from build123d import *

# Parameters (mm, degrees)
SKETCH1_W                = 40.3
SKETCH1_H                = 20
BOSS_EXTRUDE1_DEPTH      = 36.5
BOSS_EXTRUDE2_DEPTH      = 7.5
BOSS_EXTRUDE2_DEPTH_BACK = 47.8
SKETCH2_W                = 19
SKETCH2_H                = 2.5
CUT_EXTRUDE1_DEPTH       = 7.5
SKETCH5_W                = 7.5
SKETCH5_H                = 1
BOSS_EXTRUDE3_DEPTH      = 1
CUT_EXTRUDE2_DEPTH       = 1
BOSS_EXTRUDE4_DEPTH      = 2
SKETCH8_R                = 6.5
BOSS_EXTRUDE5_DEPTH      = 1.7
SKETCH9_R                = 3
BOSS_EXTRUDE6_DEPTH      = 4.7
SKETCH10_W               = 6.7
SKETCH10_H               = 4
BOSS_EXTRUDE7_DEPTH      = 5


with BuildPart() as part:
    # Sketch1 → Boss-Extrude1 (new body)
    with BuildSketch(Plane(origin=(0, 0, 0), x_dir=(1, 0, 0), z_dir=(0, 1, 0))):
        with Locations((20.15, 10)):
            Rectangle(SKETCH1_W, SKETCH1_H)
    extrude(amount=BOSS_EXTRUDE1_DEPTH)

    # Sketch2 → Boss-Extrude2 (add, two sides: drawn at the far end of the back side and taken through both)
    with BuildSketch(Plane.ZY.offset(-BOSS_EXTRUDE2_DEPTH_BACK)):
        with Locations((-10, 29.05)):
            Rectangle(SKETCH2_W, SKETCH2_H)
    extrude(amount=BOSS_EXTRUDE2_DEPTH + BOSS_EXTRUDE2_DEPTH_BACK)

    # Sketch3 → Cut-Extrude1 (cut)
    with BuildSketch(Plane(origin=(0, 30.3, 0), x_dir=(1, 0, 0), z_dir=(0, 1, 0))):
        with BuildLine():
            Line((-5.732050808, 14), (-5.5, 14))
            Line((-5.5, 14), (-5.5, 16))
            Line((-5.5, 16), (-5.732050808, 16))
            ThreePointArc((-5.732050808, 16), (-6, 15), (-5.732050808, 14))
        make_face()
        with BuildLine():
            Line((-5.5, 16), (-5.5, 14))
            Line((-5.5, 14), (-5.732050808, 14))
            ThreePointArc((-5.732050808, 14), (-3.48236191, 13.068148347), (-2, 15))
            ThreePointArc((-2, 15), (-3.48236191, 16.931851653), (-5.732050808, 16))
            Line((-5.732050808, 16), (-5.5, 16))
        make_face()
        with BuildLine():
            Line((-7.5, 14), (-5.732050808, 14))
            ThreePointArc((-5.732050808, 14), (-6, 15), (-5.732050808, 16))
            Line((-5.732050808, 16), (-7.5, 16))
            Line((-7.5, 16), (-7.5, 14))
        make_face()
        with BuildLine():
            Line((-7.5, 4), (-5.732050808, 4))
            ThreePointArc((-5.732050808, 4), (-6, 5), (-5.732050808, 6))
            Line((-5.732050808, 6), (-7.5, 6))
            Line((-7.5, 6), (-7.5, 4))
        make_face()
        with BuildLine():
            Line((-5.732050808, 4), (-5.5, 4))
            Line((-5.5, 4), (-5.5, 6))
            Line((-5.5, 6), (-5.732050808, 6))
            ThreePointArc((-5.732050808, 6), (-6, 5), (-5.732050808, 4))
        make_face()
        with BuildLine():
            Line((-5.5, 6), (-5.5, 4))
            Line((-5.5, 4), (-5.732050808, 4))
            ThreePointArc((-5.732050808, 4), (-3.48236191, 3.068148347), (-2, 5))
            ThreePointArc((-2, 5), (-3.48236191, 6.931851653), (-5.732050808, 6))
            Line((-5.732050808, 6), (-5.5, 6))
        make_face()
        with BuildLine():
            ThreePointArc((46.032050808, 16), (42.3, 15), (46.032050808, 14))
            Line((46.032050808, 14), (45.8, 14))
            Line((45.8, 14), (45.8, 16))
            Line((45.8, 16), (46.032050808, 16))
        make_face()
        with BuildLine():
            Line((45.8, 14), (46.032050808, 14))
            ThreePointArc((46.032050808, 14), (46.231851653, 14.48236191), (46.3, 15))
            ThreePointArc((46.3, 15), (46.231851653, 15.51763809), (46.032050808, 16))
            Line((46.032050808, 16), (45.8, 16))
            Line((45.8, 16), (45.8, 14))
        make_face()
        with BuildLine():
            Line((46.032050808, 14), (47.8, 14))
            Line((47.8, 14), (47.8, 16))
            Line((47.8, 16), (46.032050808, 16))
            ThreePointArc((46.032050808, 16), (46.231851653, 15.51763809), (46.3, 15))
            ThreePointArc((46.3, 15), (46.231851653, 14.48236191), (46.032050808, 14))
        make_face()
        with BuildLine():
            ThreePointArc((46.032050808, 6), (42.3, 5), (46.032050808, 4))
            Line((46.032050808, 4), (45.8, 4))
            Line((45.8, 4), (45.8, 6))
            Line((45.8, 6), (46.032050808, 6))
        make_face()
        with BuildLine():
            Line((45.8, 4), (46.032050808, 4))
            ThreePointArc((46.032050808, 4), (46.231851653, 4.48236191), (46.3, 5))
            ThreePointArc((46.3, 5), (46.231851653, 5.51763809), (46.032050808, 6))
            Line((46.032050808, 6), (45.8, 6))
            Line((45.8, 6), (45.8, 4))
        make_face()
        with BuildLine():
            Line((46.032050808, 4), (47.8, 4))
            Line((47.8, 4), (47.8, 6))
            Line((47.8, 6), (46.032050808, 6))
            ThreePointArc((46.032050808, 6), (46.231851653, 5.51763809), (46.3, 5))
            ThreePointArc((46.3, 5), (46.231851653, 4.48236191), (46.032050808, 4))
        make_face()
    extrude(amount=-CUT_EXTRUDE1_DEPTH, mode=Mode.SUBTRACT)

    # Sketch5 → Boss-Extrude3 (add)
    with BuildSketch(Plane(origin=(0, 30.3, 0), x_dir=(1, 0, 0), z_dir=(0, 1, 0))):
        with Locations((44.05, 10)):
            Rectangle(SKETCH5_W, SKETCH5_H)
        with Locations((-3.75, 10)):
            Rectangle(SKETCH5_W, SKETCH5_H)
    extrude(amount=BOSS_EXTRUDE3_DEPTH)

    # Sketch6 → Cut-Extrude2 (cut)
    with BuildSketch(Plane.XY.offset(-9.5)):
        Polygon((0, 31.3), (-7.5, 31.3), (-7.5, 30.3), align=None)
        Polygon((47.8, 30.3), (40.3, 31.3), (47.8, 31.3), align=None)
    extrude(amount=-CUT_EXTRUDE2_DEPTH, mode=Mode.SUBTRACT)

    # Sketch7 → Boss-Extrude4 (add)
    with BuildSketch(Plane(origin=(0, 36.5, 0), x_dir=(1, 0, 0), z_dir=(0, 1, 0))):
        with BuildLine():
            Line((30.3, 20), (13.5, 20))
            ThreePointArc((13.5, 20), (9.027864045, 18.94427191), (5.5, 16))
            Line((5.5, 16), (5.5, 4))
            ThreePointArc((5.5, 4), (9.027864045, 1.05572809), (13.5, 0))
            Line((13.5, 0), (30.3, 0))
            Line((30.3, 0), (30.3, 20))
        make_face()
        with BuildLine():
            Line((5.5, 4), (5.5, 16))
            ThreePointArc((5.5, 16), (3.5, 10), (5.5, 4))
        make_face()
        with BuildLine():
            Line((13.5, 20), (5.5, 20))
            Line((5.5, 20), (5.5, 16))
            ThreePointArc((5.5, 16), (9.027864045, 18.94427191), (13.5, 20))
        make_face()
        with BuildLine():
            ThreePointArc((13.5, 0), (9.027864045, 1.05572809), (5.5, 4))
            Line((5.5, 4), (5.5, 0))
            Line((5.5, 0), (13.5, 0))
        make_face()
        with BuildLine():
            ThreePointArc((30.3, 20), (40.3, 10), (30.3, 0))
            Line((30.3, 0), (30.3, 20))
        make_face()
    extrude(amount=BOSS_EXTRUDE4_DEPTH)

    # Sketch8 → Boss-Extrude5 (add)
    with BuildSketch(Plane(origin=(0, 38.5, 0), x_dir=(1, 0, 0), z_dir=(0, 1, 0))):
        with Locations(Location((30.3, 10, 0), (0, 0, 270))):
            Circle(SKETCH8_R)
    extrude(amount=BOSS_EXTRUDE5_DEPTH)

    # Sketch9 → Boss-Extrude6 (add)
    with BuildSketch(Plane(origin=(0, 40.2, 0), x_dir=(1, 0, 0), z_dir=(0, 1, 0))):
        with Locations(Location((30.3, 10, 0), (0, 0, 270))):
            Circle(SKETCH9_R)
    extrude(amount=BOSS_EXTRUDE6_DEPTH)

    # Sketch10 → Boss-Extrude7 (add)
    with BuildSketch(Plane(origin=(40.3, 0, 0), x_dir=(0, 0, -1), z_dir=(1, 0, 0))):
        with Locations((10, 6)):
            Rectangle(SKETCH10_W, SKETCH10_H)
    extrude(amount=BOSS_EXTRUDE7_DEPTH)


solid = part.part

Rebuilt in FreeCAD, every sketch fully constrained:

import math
import FreeCAD as App
import Part
import Sketcher

doc = App.newDocument("Part")
body = doc.addObject("PartDesign::Body", "Body")

# Sketch on XZ plane
sketch1 = body.newObject("Sketcher::SketchObject", "Sketch")
sketch1.AttachmentSupport = (doc.getObject("XZ_Plane"), [""])
sketch1.MapMode = "FlatFace"
sketch1.addGeometry(Part.LineSegment(App.Vector(0, -20, 0), App.Vector(0, 0, 0)), False)
sketch1.addGeometry(Part.LineSegment(App.Vector(0, 0, 0), App.Vector(40, 0, 0)), False)
sketch1.addGeometry(Part.LineSegment(App.Vector(40, 0, 0), App.Vector(40, -20, 0)), False)
sketch1.addGeometry(Part.LineSegment(App.Vector(40, -20, 0), App.Vector(0, -20, 0)), False)
sketch1.addConstraint(Sketcher.Constraint("Coincident", 0, 2, 1, 1))
sketch1.addConstraint(Sketcher.Constraint("Coincident", 1, 2, 2, 1))
sketch1.addConstraint(Sketcher.Constraint("Coincident", 2, 2, 3, 1))
sketch1.addConstraint(Sketcher.Constraint("Coincident", 3, 2, 0, 1))
sketch1.addConstraint(Sketcher.Constraint("Vertical", 0))
sketch1.addConstraint(Sketcher.Constraint("Horizontal", 1))
sketch1.addConstraint(Sketcher.Constraint("Vertical", 2))
sketch1.addConstraint(Sketcher.Constraint("Horizontal", 3))
sketch1.addConstraint(Sketcher.Constraint("Coincident", 0, 2, -1, 1))
sketch1.addConstraint(Sketcher.Constraint("DistanceY", 0, 1, 0, 2, 20.0))
sketch1.addConstraint(Sketcher.Constraint("DistanceX", 1, 1, 1, 2, 40.3))
pad1 = body.newObject("PartDesign::Pad", "Pad")
pad1.Profile = sketch1
pad1.Length = 36.5
pad1.Reversed = True

# Sketch on YZ plane
sketch2 = body.newObject("Sketcher::SketchObject", "Sketch001")
sketch2.AttachmentSupport = (doc.getObject("YZ_Plane"), [""])
sketch2.MapMode = "FlatFace"
sketch2.addGeometry(Part.LineSegment(App.Vector(30.3, -19.5, 0), App.Vector(27.8, -19.5, 0)), False)
sketch2.addGeometry(Part.LineSegment(App.Vector(27.8, -19.5, 0), App.Vector(27.8, -0.5, 0)), False)
sketch2.addGeometry(Part.LineSegment(App.Vector(27.8, -0.5, 0), App.Vector(30.3, -0.5, 0)), False)
sketch2.addGeometry(Part.LineSegment(App.Vector(30.3, -0.5, 0), App.Vector(30.3, -19.5, 0)), False)
sketch2.addConstraint(Sketcher.Constraint("Coincident", 0, 2, 1, 1))
sketch2.addConstraint(Sketcher.Constraint("Coincident", 1, 2, 2, 1))
sketch2.addConstraint(Sketcher.Constraint("Coincident", 2, 2, 3, 1))
sketch2.addConstraint(Sketcher.Constraint("Coincident", 3, 2, 0, 1))
sketch2.addConstraint(Sketcher.Constraint("Horizontal", 0))
sketch2.addConstraint(Sketcher.Constraint("Vertical", 1))
sketch2.addConstraint(Sketcher.Constraint("Horizontal", 2))
sketch2.addConstraint(Sketcher.Constraint("Vertical", 3))
sketch2.addConstraint(Sketcher.Constraint("DistanceY", 1, 1, 1, 2, 19.0))
sketch2.addConstraint(Sketcher.Constraint("DistanceX", 0, 2, 0, 1, 2.5))
sketch2.addConstraint(Sketcher.Constraint("DistanceX", -1, 1, 0, 2, 27.8))
sketch2.addConstraint(Sketcher.Constraint("DistanceY", 0, 2, -1, 1, 19.5))
pad2 = body.newObject("PartDesign::Pad", "Pad001")
pad2.Profile = sketch2
pad2.Type = "TwoLengths"
pad2.Length = 7.5
pad2.Length2 = 47.8
pad2.Reversed = True

# Sketch on XZ plane
sketch3 = body.newObject("Sketcher::SketchObject", "Sketch002")
sketch3.AttachmentSupport = (doc.getObject("XZ_Plane"), [""])
sketch3.MapMode = "FlatFace"
sketch3.AttachmentOffset = App.Placement(App.Vector(0, 0, -30.3), App.Rotation())
sketch3.addGeometry(Part.ArcOfCircle(Part.Circle(App.Vector(-4, -15, 0), App.Vector(0, 0, 1), 2), math.radians(0), math.radians(150)), False)
sketch3.addGeometry(Part.ArcOfCircle(Part.Circle(App.Vector(-4, -15, 0), App.Vector(0, 0, 1), 2), math.radians(-150), math.radians(0)), False)
sketch3.addGeometry(Part.LineSegment(App.Vector(-5.7, -16, 0), App.Vector(-7.5, -16, 0)), False)
sketch3.addGeometry(Part.LineSegment(App.Vector(-7.5, -16, 0), App.Vector(-7.5, -14, 0)), False)
sketch3.addGeometry(Part.LineSegment(App.Vector(-7.5, -14, 0), App.Vector(-5.7, -14, 0)), False)
sketch3.addGeometry(Part.LineSegment(App.Vector(-5.7, -6, 0), App.Vector(-7.5, -6, 0)), False)
sketch3.addGeometry(Part.LineSegment(App.Vector(-7.5, -6, 0), App.Vector(-7.5, -4, 0)), False)
sketch3.addGeometry(Part.LineSegment(App.Vector(-7.5, -4, 0), App.Vector(-5.7, -4, 0)), False)
sketch3.addGeometry(Part.ArcOfCircle(Part.Circle(App.Vector(-4, -5, 0), App.Vector(0, 0, 1), 2), math.radians(0), math.radians(150)), False)
sketch3.addGeometry(Part.ArcOfCircle(Part.Circle(App.Vector(-4, -5, 0), App.Vector(0, 0, 1), 2), math.radians(-150), math.radians(0)), False)
sketch3.addGeometry(Part.ArcOfCircle(Part.Circle(App.Vector(44.3, -15, 0), App.Vector(0, 0, 1), 2), math.radians(30), math.radians(330)), False)
sketch3.addGeometry(Part.LineSegment(App.Vector(46, -14, 0), App.Vector(47.8, -14, 0)), False)
sketch3.addGeometry(Part.LineSegment(App.Vector(47.8, -14, 0), App.Vector(47.8, -16, 0)), False)
sketch3.addGeometry(Part.LineSegment(App.Vector(47.8, -16, 0), App.Vector(46, -16, 0)), False)
sketch3.addGeometry(Part.ArcOfCircle(Part.Circle(App.Vector(44.3, -5, 0), App.Vector(0, 0, 1), 2), math.radians(30), math.radians(330)), False)
sketch3.addGeometry(Part.LineSegment(App.Vector(46, -4, 0), App.Vector(47.8, -4, 0)), False)
sketch3.addGeometry(Part.LineSegment(App.Vector(47.8, -4, 0), App.Vector(47.8, -6, 0)), False)
sketch3.addGeometry(Part.LineSegment(App.Vector(47.8, -6, 0), App.Vector(46, -6, 0)), False)
sketch3.addConstraint(Sketcher.Constraint("Tangent", 0, 1, 1, 2))
sketch3.addConstraint(Sketcher.Constraint("Coincident", 1, 1, 2, 1))
sketch3.addConstraint(Sketcher.Constraint("Coincident", 2, 2, 3, 1))
sketch3.addConstraint(Sketcher.Constraint("Coincident", 3, 2, 4, 1))
sketch3.addConstraint(Sketcher.Constraint("Coincident", 4, 2, 0, 2))
sketch3.addConstraint(Sketcher.Constraint("Coincident", 5, 2, 6, 1))
sketch3.addConstraint(Sketcher.Constraint("Coincident", 6, 2, 7, 1))
sketch3.addConstraint(Sketcher.Constraint("Coincident", 7, 2, 8, 2))
sketch3.addConstraint(Sketcher.Constraint("Tangent", 8, 1, 9, 2))
sketch3.addConstraint(Sketcher.Constraint("Coincident", 9, 1, 5, 1))
sketch3.addConstraint(Sketcher.Constraint("Coincident", 10, 1, 11, 1))
sketch3.addConstraint(Sketcher.Constraint("Coincident", 11, 2, 12, 1))
sketch3.addConstraint(Sketcher.Constraint("Coincident", 12, 2, 13, 1))
sketch3.addConstraint(Sketcher.Constraint("Coincident", 13, 2, 10, 2))
sketch3.addConstraint(Sketcher.Constraint("Coincident", 14, 1, 15, 1))
sketch3.addConstraint(Sketcher.Constraint("Coincident", 15, 2, 16, 1))
sketch3.addConstraint(Sketcher.Constraint("Coincident", 16, 2, 17, 1))
sketch3.addConstraint(Sketcher.Constraint("Coincident", 17, 2, 14, 2))
sketch3.addConstraint(Sketcher.Constraint("Horizontal", 2))
sketch3.addConstraint(Sketcher.Constraint("Vertical", 3))
sketch3.addConstraint(Sketcher.Constraint("Horizontal", 4))
sketch3.addConstraint(Sketcher.Constraint("Horizontal", 5))
sketch3.addConstraint(Sketcher.Constraint("Vertical", 6))
sketch3.addConstraint(Sketcher.Constraint("Horizontal", 7))
sketch3.addConstraint(Sketcher.Constraint("Horizontal", 11))
sketch3.addConstraint(Sketcher.Constraint("Vertical", 12))
sketch3.addConstraint(Sketcher.Constraint("Horizontal", 13))
sketch3.addConstraint(Sketcher.Constraint("Horizontal", 15))
sketch3.addConstraint(Sketcher.Constraint("Vertical", 16))
sketch3.addConstraint(Sketcher.Constraint("Horizontal", 17))
sketch3.addConstraint(Sketcher.Constraint("Equal", 0, 1))
sketch3.addConstraint(Sketcher.Constraint("Equal", 1, 8))
sketch3.addConstraint(Sketcher.Constraint("Equal", 8, 9))
sketch3.addConstraint(Sketcher.Constraint("Equal", 9, 10))
sketch3.addConstraint(Sketcher.Constraint("Equal", 10, 14))
sketch3.addConstraint(Sketcher.Constraint("Horizontal", 1, 3, 10, 3))
sketch3.addConstraint(Sketcher.Constraint("Horizontal", 9, 3, 14, 3))
sketch3.addConstraint(Sketcher.Constraint("Horizontal", 10, 3, 0, 1))
sketch3.addConstraint(Sketcher.Constraint("Horizontal", 14, 3, 8, 1))
sketch3.addConstraint(Sketcher.Constraint("Horizontal", 4, 2, 10, 1))
sketch3.addConstraint(Sketcher.Constraint("Horizontal", 2, 2, 12, 2))
sketch3.addConstraint(Sketcher.Constraint("Horizontal", 7, 2, 14, 1))
sketch3.addConstraint(Sketcher.Constraint("Horizontal", 9, 1, 16, 2))
sketch3.addConstraint(Sketcher.Constraint("Vertical", 1, 3, 8, 3))
sketch3.addConstraint(Sketcher.Constraint("Vertical", 10, 3, 14, 3))
sketch3.addConstraint(Sketcher.Constraint("Vertical", 1, 1, 4, 2))
sketch3.addConstraint(Sketcher.Constraint("Vertical", 3, 2, 5, 2))
sketch3.addConstraint(Sketcher.Constraint("Vertical", 4, 2, 7, 2))
sketch3.addConstraint(Sketcher.Constraint("Vertical", 7, 2, 9, 1))
sketch3.addConstraint(Sketcher.Constraint("Vertical", 12, 2, 15, 2))
sketch3.addConstraint(Sketcher.Constraint("Equal", 7, 11))
sketch3.addConstraint(Sketcher.Constraint("Radius", 0, 2.0))
sketch3.addConstraint(Sketcher.Constraint("DistanceY", 3, 1, 3, 2, 2.0))
sketch3.addConstraint(Sketcher.Constraint("DistanceX", 0, 3, -1, 1, 4.0))
sketch3.addConstraint(Sketcher.Constraint("DistanceY", 0, 3, -1, 1, 15.0))
sketch3.addConstraint(Sketcher.Constraint("DistanceY", 8, 3, -1, 1, 5.0))
sketch3.addConstraint(Sketcher.Constraint("DistanceX", -1, 1, 10, 3, 44.3))
sketch3.addConstraint(Sketcher.Constraint("DistanceX", 2, 2, -1, 1, 7.5))
pocket1 = body.newObject("PartDesign::Pocket", "Pocket")
pocket1.Profile = sketch3
pocket1.Length = 7.5
pocket1.Reversed = True

# Sketch on XZ plane
sketch4 = body.newObject("Sketcher::SketchObject", "Sketch003")
sketch4.AttachmentSupport = (doc.getObject("XZ_Plane"), [""])
sketch4.MapMode = "FlatFace"
sketch4.AttachmentOffset = App.Placement(App.Vector(0, 0, -30.3), App.Rotation())
sketch4.addGeometry(Part.LineSegment(App.Vector(40.3, -10.5, 0), App.Vector(40.3, -9.5, 0)), False)
sketch4.addGeometry(Part.LineSegment(App.Vector(40.3, -9.5, 0), App.Vector(47.8, -9.5, 0)), False)
sketch4.addGeometry(Part.LineSegment(App.Vector(47.8, -9.5, 0), App.Vector(47.8, -10.5, 0)), False)
sketch4.addGeometry(Part.LineSegment(App.Vector(47.8, -10.5, 0), App.Vector(40.3, -10.5, 0)), False)
sketch4.addGeometry(Part.LineSegment(App.Vector(-7.5, -10.5, 0), App.Vector(-7.5, -9.5, 0)), False)
sketch4.addGeometry(Part.LineSegment(App.Vector(-7.5, -9.5, 0), App.Vector(0, -9.5, 0)), False)
sketch4.addGeometry(Part.LineSegment(App.Vector(0, -9.5, 0), App.Vector(0, -10.5, 0)), False)
sketch4.addGeometry(Part.LineSegment(App.Vector(0, -10.5, 0), App.Vector(-7.5, -10.5, 0)), False)
sketch4.addConstraint(Sketcher.Constraint("Coincident", 0, 2, 1, 1))
sketch4.addConstraint(Sketcher.Constraint("Coincident", 1, 2, 2, 1))
sketch4.addConstraint(Sketcher.Constraint("Coincident", 2, 2, 3, 1))
sketch4.addConstraint(Sketcher.Constraint("Coincident", 3, 2, 0, 1))
sketch4.addConstraint(Sketcher.Constraint("Coincident", 4, 2, 5, 1))
sketch4.addConstraint(Sketcher.Constraint("Coincident", 5, 2, 6, 1))
sketch4.addConstraint(Sketcher.Constraint("Coincident", 6, 2, 7, 1))
sketch4.addConstraint(Sketcher.Constraint("Coincident", 7, 2, 4, 1))
sketch4.addConstraint(Sketcher.Constraint("Vertical", 0))
sketch4.addConstraint(Sketcher.Constraint("Horizontal", 1))
sketch4.addConstraint(Sketcher.Constraint("Vertical", 2))
sketch4.addConstraint(Sketcher.Constraint("Horizontal", 3))
sketch4.addConstraint(Sketcher.Constraint("Vertical", 4))
sketch4.addConstraint(Sketcher.Constraint("Horizontal", 5))
sketch4.addConstraint(Sketcher.Constraint("Vertical", 6))
sketch4.addConstraint(Sketcher.Constraint("Horizontal", 7))
sketch4.addConstraint(Sketcher.Constraint("PointOnObject", 5, 2, -2))
sketch4.addConstraint(Sketcher.Constraint("Horizontal", 1, 2, 4, 2))
sketch4.addConstraint(Sketcher.Constraint("Horizontal", 3, 2, 6, 2))
sketch4.addConstraint(Sketcher.Constraint("Equal", 3, 5))
sketch4.addConstraint(Sketcher.Constraint("DistanceY", 0, 1, 0, 2, 1.0))
sketch4.addConstraint(Sketcher.Constraint("DistanceX", 1, 1, 1, 2, 7.5))
sketch4.addConstraint(Sketcher.Constraint("DistanceX", -1, 1, 0, 2, 40.3))
sketch4.addConstraint(Sketcher.Constraint("DistanceY", 0, 2, -1, 1, 9.5))
pad3 = body.newObject("PartDesign::Pad", "Pad002")
pad3.Profile = sketch4
pad3.Length = 1
pad3.Reversed = True

# Sketch on XY plane
sketch5 = body.newObject("Sketcher::SketchObject", "Sketch004")
sketch5.AttachmentSupport = (doc.getObject("XY_Plane"), [""])
sketch5.MapMode = "FlatFace"
sketch5.AttachmentOffset = App.Placement(App.Vector(0, 0, -9.5), App.Rotation())
sketch5.addGeometry(Part.LineSegment(App.Vector(0, 31.3, 0), App.Vector(-7.5, 31.3, 0)), False)
sketch5.addGeometry(Part.LineSegment(App.Vector(-7.5, 31.3, 0), App.Vector(-7.5, 30.3, 0)), False)
sketch5.addGeometry(Part.LineSegment(App.Vector(-7.5, 30.3, 0), App.Vector(0, 31.3, 0)), False)
sketch5.addGeometry(Part.LineSegment(App.Vector(40.3, 31.3, 0), App.Vector(47.8, 30.3, 0)), False)
sketch5.addGeometry(Part.LineSegment(App.Vector(47.8, 30.3, 0), App.Vector(47.8, 31.3, 0)), False)
sketch5.addGeometry(Part.LineSegment(App.Vector(47.8, 31.3, 0), App.Vector(40.3, 31.3, 0)), False)
sketch5.addConstraint(Sketcher.Constraint("Coincident", 0, 2, 1, 1))
sketch5.addConstraint(Sketcher.Constraint("Coincident", 1, 2, 2, 1))
sketch5.addConstraint(Sketcher.Constraint("Coincident", 2, 2, 0, 1))
sketch5.addConstraint(Sketcher.Constraint("Coincident", 3, 2, 4, 1))
sketch5.addConstraint(Sketcher.Constraint("Coincident", 4, 2, 5, 1))
sketch5.addConstraint(Sketcher.Constraint("Coincident", 5, 2, 3, 1))
sketch5.addConstraint(Sketcher.Constraint("Horizontal", 0))
sketch5.addConstraint(Sketcher.Constraint("Vertical", 1))
sketch5.addConstraint(Sketcher.Constraint("Vertical", 4))
sketch5.addConstraint(Sketcher.Constraint("Horizontal", 5))
sketch5.addConstraint(Sketcher.Constraint("PointOnObject", 2, 2, -2))
sketch5.addConstraint(Sketcher.Constraint("Horizontal", 1, 2, 3, 2))
sketch5.addConstraint(Sketcher.Constraint("Horizontal", 2, 2, 4, 2))
sketch5.addConstraint(Sketcher.Constraint("Equal", 0, 5))
sketch5.addConstraint(Sketcher.Constraint("DistanceY", 1, 2, 1, 1, 1.0))
sketch5.addConstraint(Sketcher.Constraint("DistanceX", 0, 2, 0, 1, 7.5))
sketch5.addConstraint(Sketcher.Constraint("DistanceY", -1, 1, 0, 2, 31.3))
sketch5.addConstraint(Sketcher.Constraint("DistanceX", -1, 1, 3, 2, 47.8))
pocket2 = body.newObject("PartDesign::Pocket", "Pocket001")
pocket2.Profile = sketch5
pocket2.Length = 1

# Sketch on XZ plane
sketch6 = body.newObject("Sketcher::SketchObject", "Sketch005")
sketch6.AttachmentSupport = (doc.getObject("XZ_Plane"), [""])
sketch6.MapMode = "FlatFace"
sketch6.AttachmentOffset = App.Placement(App.Vector(0, 0, -36.5), App.Rotation())
sketch6.addGeometry(Part.LineSegment(App.Vector(30.3, -20, 0), App.Vector(5.5, -20, 0)), False)
sketch6.addGeometry(Part.LineSegment(App.Vector(5.5, -20, 0), App.Vector(5.5, -16, 0)), False)
sketch6.addGeometry(Part.ArcOfCircle(Part.Circle(App.Vector(13.5, -10, 0), App.Vector(0, 0, 1), 10), math.radians(143), math.radians(217)), False)
sketch6.addGeometry(Part.LineSegment(App.Vector(5.5, -4, 0), App.Vector(5.5, 0, 0)), False)
sketch6.addGeometry(Part.LineSegment(App.Vector(5.5, 0, 0), App.Vector(30.3, 0, 0)), False)
sketch6.addGeometry(Part.ArcOfCircle(Part.Circle(App.Vector(30.3, -10, 0), App.Vector(0, 0, 1), 10), math.radians(-90), math.radians(90)), False)
sketch6.addConstraint(Sketcher.Constraint("Coincident", 0, 2, 1, 1))
sketch6.addConstraint(Sketcher.Constraint("Coincident", 1, 2, 2, 2))
sketch6.addConstraint(Sketcher.Constraint("Coincident", 2, 1, 3, 1))
sketch6.addConstraint(Sketcher.Constraint("Coincident", 3, 2, 4, 1))
sketch6.addConstraint(Sketcher.Constraint("Tangent", 4, 2, 5, 2))
sketch6.addConstraint(Sketcher.Constraint("Tangent", 5, 1, 0, 1))
sketch6.addConstraint(Sketcher.Constraint("Horizontal", 0))
sketch6.addConstraint(Sketcher.Constraint("Vertical", 1))
sketch6.addConstraint(Sketcher.Constraint("Vertical", 3))
sketch6.addConstraint(Sketcher.Constraint("Horizontal", 4))
sketch6.addConstraint(Sketcher.Constraint("Equal", 2, 5))
sketch6.addConstraint(Sketcher.Constraint("PointOnObject", 3, 2, -1))
sketch6.addConstraint(Sketcher.Constraint("Horizontal", 2, 3, 5, 3))
sketch6.addConstraint(Sketcher.Constraint("Vertical", 1, 2, 2, 1))
sketch6.addConstraint(Sketcher.Constraint("Radius", 2, 10.0))
sketch6.addConstraint(Sketcher.Constraint("DistanceY", 1, 1, 1, 2, 4.0))
sketch6.addConstraint(Sketcher.Constraint("DistanceX", 0, 2, 0, 1, 24.8))
sketch6.addConstraint(Sketcher.Constraint("DistanceX", -1, 1, 2, 3, 13.5))
pad4 = body.newObject("PartDesign::Pad", "Pad003")
pad4.Profile = sketch6
pad4.Length = 2
pad4.Reversed = True

# Sketch on XZ plane
sketch7 = body.newObject("Sketcher::SketchObject", "Sketch006")
sketch7.AttachmentSupport = (doc.getObject("XZ_Plane"), [""])
sketch7.MapMode = "FlatFace"
sketch7.AttachmentOffset = App.Placement(App.Vector(0, 0, -38.5), App.Rotation())
sketch7.addGeometry(Part.Circle(App.Vector(30, -10, 0), App.Vector(0, 0, 1), 6), False)
sketch7.addConstraint(Sketcher.Constraint("Diameter", 0, 13.0))
sketch7.addConstraint(Sketcher.Constraint("DistanceY", 0, 3, -1, 1, 10.0))
sketch7.addConstraint(Sketcher.Constraint("DistanceX", -1, 1, 0, 3, 30.3))
pad5 = body.newObject("PartDesign::Pad", "Pad004")
pad5.Profile = sketch7
pad5.Length = 1.7
pad5.Reversed = True

# Sketch on XZ plane
sketch8 = body.newObject("Sketcher::SketchObject", "Sketch007")
sketch8.AttachmentSupport = (doc.getObject("XZ_Plane"), [""])
sketch8.MapMode = "FlatFace"
sketch8.AttachmentOffset = App.Placement(App.Vector(0, 0, -40.2), App.Rotation())
sketch8.addGeometry(Part.Circle(App.Vector(30.3, -10, 0), App.Vector(0, 0, 1), 3), False)
sketch8.addConstraint(Sketcher.Constraint("Diameter", 0, 6.0))
sketch8.addConstraint(Sketcher.Constraint("DistanceY", 0, 3, -1, 1, 10.0))
sketch8.addConstraint(Sketcher.Constraint("DistanceX", -1, 1, 0, 3, 30.3))
pad6 = body.newObject("PartDesign::Pad", "Pad005")
pad6.Profile = sketch8
pad6.Length = 4.7
pad6.Reversed = True

# Sketch on YZ plane
sketch9 = body.newObject("Sketcher::SketchObject", "Sketch008")
sketch9.AttachmentSupport = (doc.getObject("YZ_Plane"), [""])
sketch9.MapMode = "FlatFace"
sketch9.AttachmentOffset = App.Placement(App.Vector(0, 0, 40.3), App.Rotation())
sketch9.addGeometry(Part.LineSegment(App.Vector(8, -6.7, 0), App.Vector(4, -6.7, 0)), False)
sketch9.addGeometry(Part.LineSegment(App.Vector(4, -6.7, 0), App.Vector(4, -13.3, 0)), False)
sketch9.addGeometry(Part.LineSegment(App.Vector(4, -13.3, 0), App.Vector(8, -13.3, 0)), False)
sketch9.addGeometry(Part.LineSegment(App.Vector(8, -13.3, 0), App.Vector(8, -6.7, 0)), False)
sketch9.addConstraint(Sketcher.Constraint("Coincident", 0, 2, 1, 1))
sketch9.addConstraint(Sketcher.Constraint("Coincident", 1, 2, 2, 1))
sketch9.addConstraint(Sketcher.Constraint("Coincident", 2, 2, 3, 1))
sketch9.addConstraint(Sketcher.Constraint("Coincident", 3, 2, 0, 1))
sketch9.addConstraint(Sketcher.Constraint("Horizontal", 0))
sketch9.addConstraint(Sketcher.Constraint("Vertical", 1))
sketch9.addConstraint(Sketcher.Constraint("Horizontal", 2))
sketch9.addConstraint(Sketcher.Constraint("Vertical", 3))
sketch9.addConstraint(Sketcher.Constraint("DistanceX", 0, 2, 0, 1, 4.0))
sketch9.addConstraint(Sketcher.Constraint("DistanceY", 1, 2, 1, 1, 6.7))
sketch9.addConstraint(Sketcher.Constraint("DistanceX", -1, 1, 0, 2, 4.0))
sketch9.addConstraint(Sketcher.Constraint("DistanceY", 0, 2, -1, 1, 6.65))
pad7 = body.newObject("PartDesign::Pad", "Pad006")
pad7.Profile = sketch9
pad7.Length = 5

doc.recompute()
